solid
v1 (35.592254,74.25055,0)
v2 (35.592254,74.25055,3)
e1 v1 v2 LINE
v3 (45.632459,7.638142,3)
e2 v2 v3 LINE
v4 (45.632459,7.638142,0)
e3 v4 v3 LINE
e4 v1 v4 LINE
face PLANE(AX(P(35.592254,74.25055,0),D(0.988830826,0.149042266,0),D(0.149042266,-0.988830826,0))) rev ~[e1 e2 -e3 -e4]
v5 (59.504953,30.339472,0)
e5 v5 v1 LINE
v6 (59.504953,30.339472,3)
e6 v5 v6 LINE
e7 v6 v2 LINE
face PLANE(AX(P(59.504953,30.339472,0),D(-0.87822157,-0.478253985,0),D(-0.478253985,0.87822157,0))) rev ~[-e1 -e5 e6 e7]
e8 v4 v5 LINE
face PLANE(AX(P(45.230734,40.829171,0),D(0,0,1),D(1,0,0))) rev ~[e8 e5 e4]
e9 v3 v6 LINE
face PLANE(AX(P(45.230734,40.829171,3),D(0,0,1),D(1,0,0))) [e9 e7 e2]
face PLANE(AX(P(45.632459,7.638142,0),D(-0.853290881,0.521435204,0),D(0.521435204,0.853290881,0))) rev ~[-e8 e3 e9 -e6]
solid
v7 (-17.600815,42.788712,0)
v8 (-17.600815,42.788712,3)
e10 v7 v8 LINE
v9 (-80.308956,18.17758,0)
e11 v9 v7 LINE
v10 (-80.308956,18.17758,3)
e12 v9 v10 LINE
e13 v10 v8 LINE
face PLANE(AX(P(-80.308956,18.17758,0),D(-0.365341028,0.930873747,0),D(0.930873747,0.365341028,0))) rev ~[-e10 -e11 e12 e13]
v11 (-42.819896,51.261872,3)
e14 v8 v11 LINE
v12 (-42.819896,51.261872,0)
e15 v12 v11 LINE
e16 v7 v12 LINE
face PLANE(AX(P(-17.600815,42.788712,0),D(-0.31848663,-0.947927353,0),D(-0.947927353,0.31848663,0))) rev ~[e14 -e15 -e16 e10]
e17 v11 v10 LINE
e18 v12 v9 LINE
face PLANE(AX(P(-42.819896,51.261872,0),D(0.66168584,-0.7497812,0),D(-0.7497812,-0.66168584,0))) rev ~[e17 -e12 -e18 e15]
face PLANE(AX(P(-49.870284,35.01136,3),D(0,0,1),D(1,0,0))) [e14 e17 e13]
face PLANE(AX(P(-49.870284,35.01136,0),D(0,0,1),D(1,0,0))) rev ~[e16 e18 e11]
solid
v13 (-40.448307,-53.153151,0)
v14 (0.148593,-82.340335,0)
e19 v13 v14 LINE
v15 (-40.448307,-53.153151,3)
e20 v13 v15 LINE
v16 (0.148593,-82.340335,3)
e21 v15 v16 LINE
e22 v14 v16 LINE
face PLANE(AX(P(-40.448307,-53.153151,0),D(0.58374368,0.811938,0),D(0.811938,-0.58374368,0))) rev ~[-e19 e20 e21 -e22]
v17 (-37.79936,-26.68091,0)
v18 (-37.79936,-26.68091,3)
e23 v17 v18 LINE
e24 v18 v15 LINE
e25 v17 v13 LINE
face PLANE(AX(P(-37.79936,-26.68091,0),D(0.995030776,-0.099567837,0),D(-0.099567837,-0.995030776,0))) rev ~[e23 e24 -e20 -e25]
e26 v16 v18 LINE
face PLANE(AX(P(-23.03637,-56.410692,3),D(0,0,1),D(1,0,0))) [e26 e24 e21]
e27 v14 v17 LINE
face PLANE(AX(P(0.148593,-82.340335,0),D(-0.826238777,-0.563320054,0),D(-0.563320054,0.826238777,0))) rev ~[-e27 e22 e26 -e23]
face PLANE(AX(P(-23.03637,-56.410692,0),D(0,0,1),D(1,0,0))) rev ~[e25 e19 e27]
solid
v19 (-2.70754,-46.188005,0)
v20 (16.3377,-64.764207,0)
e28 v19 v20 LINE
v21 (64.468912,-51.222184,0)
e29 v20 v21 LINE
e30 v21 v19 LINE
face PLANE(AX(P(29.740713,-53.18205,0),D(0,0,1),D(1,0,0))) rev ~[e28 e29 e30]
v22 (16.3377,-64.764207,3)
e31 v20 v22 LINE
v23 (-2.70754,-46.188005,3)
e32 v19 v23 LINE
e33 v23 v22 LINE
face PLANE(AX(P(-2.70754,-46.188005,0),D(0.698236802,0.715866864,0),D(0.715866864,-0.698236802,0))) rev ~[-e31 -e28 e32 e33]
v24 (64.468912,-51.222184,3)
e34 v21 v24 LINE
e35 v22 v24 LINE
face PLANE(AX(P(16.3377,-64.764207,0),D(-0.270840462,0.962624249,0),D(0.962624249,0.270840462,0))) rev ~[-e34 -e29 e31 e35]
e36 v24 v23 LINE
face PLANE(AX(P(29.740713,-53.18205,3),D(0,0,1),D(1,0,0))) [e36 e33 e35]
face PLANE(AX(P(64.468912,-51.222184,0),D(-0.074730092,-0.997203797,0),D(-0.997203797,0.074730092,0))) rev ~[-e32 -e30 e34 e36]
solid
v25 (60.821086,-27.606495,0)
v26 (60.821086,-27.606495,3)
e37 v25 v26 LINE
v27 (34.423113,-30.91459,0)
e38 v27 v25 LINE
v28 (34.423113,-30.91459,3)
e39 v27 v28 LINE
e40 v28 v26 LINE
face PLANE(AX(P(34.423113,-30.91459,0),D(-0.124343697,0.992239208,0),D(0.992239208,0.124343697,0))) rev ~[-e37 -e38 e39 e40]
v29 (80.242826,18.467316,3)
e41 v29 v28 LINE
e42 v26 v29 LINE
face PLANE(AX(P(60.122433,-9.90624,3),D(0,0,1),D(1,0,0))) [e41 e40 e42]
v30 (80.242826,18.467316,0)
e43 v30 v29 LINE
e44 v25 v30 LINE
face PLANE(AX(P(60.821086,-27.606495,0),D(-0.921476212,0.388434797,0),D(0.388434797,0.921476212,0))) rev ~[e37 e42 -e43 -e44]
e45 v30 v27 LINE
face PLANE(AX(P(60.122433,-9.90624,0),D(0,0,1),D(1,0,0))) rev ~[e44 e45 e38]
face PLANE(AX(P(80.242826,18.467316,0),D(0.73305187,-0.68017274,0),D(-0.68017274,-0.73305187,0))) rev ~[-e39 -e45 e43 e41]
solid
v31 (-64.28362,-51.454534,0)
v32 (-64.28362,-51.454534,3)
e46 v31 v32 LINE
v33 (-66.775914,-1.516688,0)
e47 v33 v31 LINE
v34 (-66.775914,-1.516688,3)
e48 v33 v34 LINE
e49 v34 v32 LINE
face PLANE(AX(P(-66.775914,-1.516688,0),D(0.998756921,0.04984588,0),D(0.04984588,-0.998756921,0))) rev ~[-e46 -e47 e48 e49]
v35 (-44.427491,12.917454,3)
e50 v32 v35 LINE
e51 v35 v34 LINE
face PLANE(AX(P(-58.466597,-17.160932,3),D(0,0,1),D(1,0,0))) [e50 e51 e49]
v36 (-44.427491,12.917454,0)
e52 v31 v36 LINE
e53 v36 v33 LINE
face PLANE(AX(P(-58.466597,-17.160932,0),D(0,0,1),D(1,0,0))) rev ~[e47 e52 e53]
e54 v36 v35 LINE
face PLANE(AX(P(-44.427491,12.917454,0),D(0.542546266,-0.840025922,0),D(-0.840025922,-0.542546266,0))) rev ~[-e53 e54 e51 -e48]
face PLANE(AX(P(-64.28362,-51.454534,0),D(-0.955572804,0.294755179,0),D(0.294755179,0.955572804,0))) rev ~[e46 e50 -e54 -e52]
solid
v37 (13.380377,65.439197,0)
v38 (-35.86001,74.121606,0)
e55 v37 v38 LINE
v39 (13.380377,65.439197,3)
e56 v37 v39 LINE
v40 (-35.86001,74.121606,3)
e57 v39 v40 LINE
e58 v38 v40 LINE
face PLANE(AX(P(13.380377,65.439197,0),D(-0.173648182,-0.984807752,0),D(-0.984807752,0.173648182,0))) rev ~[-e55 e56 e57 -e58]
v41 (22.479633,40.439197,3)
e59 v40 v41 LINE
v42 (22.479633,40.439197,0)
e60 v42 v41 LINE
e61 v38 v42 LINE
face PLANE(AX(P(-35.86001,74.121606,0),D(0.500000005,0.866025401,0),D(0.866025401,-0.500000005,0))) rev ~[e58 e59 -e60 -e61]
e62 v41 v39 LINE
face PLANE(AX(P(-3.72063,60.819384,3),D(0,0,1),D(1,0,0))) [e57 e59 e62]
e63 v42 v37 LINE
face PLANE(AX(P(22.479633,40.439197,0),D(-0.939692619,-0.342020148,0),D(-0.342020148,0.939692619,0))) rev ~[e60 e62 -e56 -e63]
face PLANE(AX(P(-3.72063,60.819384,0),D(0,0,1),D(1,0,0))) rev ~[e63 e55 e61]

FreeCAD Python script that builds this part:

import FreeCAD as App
import Part
import Sketcher

V = App.Vector
Q = App.Units.Quantity


def add_polygon(sketch, points):
    """Adds a closed chain of lines whose ends are joined by coincident constraints."""
    first, n = sketch.GeometryCount, len(points)
    for a, b in zip(points, points[1:] + points[:1]):
        sketch.addGeometry(Part.LineSegment(App.Vector(*a, 0), App.Vector(*b, 0)), False)
    for i in range(n):
        sketch.addConstraint(Sketcher.Constraint("Coincident", first + i, 2, first + (i + 1) % n, 1))

doc = App.newDocument("Part")
body = doc.addObject("PartDesign::Body", "Body")
body.AllowCompound = True

# Sketch on XY plane
sketch1 = doc.addObject("Sketcher::SketchObject", "Sketch")
body.addObject(sketch1)
sketch1.AttachmentSupport = (doc.XY_Plane, [""])
sketch1.MapMode = "FlatFace"
add_polygon(sketch1, [(13, 65), (-36, 74), (22, 40)])  # lines 0-2
add_polygon(sketch1, [(-80, 18), (-18, 43), (-43, 51)])  # lines 3-5
add_polygon(sketch1, [(-64, -51), (-44, 13), (-67, -2)])  # lines 6-8
add_polygon(sketch1, [(0, -82), (-38, -27), (-40, -53)])  # lines 9-11
add_polygon(sketch1, [(64, -51), (-3, -46), (16, -65)])  # lines 12-14
add_polygon(sketch1, [(80, 18), (34, -31), (61, -28)])  # lines 15-17
add_polygon(sketch1, [(36, 74), (46, 8), (60, 30)])  # lines 18-20
sketch1.addConstraint(Sketcher.Constraint("Equal", 1, 3))
sketch1.addConstraint(Sketcher.Constraint("Equal", 2, 4))
sketch1.addConstraint(Sketcher.Constraint("Equal", 0, 5))
sketch1.addConstraint(Sketcher.Constraint("Equal", 3, 6))
sketch1.addConstraint(Sketcher.Constraint("Equal", 4, 7))
sketch1.addConstraint(Sketcher.Constraint("Equal", 5, 8))
sketch1.addConstraint(Sketcher.Constraint("Equal", 6, 9))
sketch1.addConstraint(Sketcher.Constraint("Equal", 7, 10))
sketch1.addConstraint(Sketcher.Constraint("Equal", 8, 11))
sketch1.addConstraint(Sketcher.Constraint("Equal", 9, 12))
sketch1.addConstraint(Sketcher.Constraint("Equal", 10, 13))
sketch1.addConstraint(Sketcher.Constraint("Equal", 11, 14))
sketch1.addConstraint(Sketcher.Constraint("Equal", 12, 15))
sketch1.addConstraint(Sketcher.Constraint("Equal", 13, 16))
sketch1.addConstraint(Sketcher.Constraint("Equal", 14, 17))
sketch1.addConstraint(Sketcher.Constraint("Equal", 15, 18))
sketch1.addConstraint(Sketcher.Constraint("Equal", 16, 19))
sketch1.addConstraint(Sketcher.Constraint("Equal", 17, 20))
sketch1.addConstraint(Sketcher.Constraint("Angle", 0, Q("170 deg")))
sketch1.addConstraint(Sketcher.Constraint("Angle", 1, Q("-30 deg")))
sketch1.addConstraint(Sketcher.Constraint("Angle", 2, Q("110 deg")))
sketch1.addConstraint(Sketcher.Constraint("Distance", 0, Q("49.999999 mm")))
sketch1.addConstraint(Sketcher.Constraint("DistanceX", -1, 1, 13, 2, Q("16.3377 mm")))
sketch1.addConstraint(Sketcher.Constraint("DistanceX", 7, 2, 3, 2, Q("49.175099 mm")))
sketch1.addConstraint(Sketcher.Constraint("DistanceY", 7, 2, 3, 2, Q("44.3054 mm")))
sketch1.addConstraint(Sketcher.Constraint("DistanceX", 10, 2, 11, 2, Q("40.5969 mm")))
sketch1.addConstraint(Sketcher.Constraint("DistanceY", 11, 2, 8, 2, Q("30.885801 mm")))
sketch1.addConstraint(Sketcher.Constraint("DistanceX", 15, 2, 14, 2, Q("30.045799 mm")))
sketch1.addConstraint(Sketcher.Constraint("DistanceY", 14, 2, 17, 2, Q("69.6895 mm")))
sketch1.addConstraint(Sketcher.Constraint("DistanceX", 20, 2, 19, 2, Q("23.912699 mm")))
sketch1.addConstraint(Sketcher.Constraint("DistanceX", 0, 2, -1, 1, Q("35.86001 mm")))
sketch1.addConstraint(Sketcher.Constraint("DistanceY", -1, 1, 3, 2, Q("42.788712 mm")))
sketch1.addConstraint(Sketcher.Constraint("DistanceY", -1, 1, 4, 2, Q("51.261872 mm")))
sketch1.addConstraint(Sketcher.Constraint("DistanceX", 6, 2, -1, 1, Q("44.427491 mm")))
sketch1.addConstraint(Sketcher.Constraint("DistanceX", 8, 2, -1, 1, Q("64.28362 mm")))
sketch1.addConstraint(Sketcher.Constraint("DistanceX", 9, 2, -1, 1, Q("37.79936 mm")))
sketch1.addConstraint(Sketcher.Constraint("DistanceX", 12, 2, -1, 1, Q("2.70754 mm")))
sketch1.addConstraint(Sketcher.Constraint("DistanceY", 15, 2, -1, 1, Q("30.91459 mm")))
sketch1.addConstraint(Sketcher.Constraint("DistanceX", -1, 1, 18, 2, Q("45.632459 mm")))
sketch1.addConstraint(Sketcher.Constraint("DistanceY", -1, 1, 20, 2, Q("74.25055 mm")))
sketch1.addConstraint(Sketcher.Constraint("DistanceY", 11, 2, 12, 2, Q("36.15233 mm")))
sketch1.addConstraint(Sketcher.Constraint("DistanceY", 14, 2, 1, 2, Q("91.661381 mm")))
pad1 = doc.addObject("PartDesign::Pad", "Pad")
body.addObject(pad1)
pad1.Profile = sketch1
pad1.Length = 3

doc.recompute()
